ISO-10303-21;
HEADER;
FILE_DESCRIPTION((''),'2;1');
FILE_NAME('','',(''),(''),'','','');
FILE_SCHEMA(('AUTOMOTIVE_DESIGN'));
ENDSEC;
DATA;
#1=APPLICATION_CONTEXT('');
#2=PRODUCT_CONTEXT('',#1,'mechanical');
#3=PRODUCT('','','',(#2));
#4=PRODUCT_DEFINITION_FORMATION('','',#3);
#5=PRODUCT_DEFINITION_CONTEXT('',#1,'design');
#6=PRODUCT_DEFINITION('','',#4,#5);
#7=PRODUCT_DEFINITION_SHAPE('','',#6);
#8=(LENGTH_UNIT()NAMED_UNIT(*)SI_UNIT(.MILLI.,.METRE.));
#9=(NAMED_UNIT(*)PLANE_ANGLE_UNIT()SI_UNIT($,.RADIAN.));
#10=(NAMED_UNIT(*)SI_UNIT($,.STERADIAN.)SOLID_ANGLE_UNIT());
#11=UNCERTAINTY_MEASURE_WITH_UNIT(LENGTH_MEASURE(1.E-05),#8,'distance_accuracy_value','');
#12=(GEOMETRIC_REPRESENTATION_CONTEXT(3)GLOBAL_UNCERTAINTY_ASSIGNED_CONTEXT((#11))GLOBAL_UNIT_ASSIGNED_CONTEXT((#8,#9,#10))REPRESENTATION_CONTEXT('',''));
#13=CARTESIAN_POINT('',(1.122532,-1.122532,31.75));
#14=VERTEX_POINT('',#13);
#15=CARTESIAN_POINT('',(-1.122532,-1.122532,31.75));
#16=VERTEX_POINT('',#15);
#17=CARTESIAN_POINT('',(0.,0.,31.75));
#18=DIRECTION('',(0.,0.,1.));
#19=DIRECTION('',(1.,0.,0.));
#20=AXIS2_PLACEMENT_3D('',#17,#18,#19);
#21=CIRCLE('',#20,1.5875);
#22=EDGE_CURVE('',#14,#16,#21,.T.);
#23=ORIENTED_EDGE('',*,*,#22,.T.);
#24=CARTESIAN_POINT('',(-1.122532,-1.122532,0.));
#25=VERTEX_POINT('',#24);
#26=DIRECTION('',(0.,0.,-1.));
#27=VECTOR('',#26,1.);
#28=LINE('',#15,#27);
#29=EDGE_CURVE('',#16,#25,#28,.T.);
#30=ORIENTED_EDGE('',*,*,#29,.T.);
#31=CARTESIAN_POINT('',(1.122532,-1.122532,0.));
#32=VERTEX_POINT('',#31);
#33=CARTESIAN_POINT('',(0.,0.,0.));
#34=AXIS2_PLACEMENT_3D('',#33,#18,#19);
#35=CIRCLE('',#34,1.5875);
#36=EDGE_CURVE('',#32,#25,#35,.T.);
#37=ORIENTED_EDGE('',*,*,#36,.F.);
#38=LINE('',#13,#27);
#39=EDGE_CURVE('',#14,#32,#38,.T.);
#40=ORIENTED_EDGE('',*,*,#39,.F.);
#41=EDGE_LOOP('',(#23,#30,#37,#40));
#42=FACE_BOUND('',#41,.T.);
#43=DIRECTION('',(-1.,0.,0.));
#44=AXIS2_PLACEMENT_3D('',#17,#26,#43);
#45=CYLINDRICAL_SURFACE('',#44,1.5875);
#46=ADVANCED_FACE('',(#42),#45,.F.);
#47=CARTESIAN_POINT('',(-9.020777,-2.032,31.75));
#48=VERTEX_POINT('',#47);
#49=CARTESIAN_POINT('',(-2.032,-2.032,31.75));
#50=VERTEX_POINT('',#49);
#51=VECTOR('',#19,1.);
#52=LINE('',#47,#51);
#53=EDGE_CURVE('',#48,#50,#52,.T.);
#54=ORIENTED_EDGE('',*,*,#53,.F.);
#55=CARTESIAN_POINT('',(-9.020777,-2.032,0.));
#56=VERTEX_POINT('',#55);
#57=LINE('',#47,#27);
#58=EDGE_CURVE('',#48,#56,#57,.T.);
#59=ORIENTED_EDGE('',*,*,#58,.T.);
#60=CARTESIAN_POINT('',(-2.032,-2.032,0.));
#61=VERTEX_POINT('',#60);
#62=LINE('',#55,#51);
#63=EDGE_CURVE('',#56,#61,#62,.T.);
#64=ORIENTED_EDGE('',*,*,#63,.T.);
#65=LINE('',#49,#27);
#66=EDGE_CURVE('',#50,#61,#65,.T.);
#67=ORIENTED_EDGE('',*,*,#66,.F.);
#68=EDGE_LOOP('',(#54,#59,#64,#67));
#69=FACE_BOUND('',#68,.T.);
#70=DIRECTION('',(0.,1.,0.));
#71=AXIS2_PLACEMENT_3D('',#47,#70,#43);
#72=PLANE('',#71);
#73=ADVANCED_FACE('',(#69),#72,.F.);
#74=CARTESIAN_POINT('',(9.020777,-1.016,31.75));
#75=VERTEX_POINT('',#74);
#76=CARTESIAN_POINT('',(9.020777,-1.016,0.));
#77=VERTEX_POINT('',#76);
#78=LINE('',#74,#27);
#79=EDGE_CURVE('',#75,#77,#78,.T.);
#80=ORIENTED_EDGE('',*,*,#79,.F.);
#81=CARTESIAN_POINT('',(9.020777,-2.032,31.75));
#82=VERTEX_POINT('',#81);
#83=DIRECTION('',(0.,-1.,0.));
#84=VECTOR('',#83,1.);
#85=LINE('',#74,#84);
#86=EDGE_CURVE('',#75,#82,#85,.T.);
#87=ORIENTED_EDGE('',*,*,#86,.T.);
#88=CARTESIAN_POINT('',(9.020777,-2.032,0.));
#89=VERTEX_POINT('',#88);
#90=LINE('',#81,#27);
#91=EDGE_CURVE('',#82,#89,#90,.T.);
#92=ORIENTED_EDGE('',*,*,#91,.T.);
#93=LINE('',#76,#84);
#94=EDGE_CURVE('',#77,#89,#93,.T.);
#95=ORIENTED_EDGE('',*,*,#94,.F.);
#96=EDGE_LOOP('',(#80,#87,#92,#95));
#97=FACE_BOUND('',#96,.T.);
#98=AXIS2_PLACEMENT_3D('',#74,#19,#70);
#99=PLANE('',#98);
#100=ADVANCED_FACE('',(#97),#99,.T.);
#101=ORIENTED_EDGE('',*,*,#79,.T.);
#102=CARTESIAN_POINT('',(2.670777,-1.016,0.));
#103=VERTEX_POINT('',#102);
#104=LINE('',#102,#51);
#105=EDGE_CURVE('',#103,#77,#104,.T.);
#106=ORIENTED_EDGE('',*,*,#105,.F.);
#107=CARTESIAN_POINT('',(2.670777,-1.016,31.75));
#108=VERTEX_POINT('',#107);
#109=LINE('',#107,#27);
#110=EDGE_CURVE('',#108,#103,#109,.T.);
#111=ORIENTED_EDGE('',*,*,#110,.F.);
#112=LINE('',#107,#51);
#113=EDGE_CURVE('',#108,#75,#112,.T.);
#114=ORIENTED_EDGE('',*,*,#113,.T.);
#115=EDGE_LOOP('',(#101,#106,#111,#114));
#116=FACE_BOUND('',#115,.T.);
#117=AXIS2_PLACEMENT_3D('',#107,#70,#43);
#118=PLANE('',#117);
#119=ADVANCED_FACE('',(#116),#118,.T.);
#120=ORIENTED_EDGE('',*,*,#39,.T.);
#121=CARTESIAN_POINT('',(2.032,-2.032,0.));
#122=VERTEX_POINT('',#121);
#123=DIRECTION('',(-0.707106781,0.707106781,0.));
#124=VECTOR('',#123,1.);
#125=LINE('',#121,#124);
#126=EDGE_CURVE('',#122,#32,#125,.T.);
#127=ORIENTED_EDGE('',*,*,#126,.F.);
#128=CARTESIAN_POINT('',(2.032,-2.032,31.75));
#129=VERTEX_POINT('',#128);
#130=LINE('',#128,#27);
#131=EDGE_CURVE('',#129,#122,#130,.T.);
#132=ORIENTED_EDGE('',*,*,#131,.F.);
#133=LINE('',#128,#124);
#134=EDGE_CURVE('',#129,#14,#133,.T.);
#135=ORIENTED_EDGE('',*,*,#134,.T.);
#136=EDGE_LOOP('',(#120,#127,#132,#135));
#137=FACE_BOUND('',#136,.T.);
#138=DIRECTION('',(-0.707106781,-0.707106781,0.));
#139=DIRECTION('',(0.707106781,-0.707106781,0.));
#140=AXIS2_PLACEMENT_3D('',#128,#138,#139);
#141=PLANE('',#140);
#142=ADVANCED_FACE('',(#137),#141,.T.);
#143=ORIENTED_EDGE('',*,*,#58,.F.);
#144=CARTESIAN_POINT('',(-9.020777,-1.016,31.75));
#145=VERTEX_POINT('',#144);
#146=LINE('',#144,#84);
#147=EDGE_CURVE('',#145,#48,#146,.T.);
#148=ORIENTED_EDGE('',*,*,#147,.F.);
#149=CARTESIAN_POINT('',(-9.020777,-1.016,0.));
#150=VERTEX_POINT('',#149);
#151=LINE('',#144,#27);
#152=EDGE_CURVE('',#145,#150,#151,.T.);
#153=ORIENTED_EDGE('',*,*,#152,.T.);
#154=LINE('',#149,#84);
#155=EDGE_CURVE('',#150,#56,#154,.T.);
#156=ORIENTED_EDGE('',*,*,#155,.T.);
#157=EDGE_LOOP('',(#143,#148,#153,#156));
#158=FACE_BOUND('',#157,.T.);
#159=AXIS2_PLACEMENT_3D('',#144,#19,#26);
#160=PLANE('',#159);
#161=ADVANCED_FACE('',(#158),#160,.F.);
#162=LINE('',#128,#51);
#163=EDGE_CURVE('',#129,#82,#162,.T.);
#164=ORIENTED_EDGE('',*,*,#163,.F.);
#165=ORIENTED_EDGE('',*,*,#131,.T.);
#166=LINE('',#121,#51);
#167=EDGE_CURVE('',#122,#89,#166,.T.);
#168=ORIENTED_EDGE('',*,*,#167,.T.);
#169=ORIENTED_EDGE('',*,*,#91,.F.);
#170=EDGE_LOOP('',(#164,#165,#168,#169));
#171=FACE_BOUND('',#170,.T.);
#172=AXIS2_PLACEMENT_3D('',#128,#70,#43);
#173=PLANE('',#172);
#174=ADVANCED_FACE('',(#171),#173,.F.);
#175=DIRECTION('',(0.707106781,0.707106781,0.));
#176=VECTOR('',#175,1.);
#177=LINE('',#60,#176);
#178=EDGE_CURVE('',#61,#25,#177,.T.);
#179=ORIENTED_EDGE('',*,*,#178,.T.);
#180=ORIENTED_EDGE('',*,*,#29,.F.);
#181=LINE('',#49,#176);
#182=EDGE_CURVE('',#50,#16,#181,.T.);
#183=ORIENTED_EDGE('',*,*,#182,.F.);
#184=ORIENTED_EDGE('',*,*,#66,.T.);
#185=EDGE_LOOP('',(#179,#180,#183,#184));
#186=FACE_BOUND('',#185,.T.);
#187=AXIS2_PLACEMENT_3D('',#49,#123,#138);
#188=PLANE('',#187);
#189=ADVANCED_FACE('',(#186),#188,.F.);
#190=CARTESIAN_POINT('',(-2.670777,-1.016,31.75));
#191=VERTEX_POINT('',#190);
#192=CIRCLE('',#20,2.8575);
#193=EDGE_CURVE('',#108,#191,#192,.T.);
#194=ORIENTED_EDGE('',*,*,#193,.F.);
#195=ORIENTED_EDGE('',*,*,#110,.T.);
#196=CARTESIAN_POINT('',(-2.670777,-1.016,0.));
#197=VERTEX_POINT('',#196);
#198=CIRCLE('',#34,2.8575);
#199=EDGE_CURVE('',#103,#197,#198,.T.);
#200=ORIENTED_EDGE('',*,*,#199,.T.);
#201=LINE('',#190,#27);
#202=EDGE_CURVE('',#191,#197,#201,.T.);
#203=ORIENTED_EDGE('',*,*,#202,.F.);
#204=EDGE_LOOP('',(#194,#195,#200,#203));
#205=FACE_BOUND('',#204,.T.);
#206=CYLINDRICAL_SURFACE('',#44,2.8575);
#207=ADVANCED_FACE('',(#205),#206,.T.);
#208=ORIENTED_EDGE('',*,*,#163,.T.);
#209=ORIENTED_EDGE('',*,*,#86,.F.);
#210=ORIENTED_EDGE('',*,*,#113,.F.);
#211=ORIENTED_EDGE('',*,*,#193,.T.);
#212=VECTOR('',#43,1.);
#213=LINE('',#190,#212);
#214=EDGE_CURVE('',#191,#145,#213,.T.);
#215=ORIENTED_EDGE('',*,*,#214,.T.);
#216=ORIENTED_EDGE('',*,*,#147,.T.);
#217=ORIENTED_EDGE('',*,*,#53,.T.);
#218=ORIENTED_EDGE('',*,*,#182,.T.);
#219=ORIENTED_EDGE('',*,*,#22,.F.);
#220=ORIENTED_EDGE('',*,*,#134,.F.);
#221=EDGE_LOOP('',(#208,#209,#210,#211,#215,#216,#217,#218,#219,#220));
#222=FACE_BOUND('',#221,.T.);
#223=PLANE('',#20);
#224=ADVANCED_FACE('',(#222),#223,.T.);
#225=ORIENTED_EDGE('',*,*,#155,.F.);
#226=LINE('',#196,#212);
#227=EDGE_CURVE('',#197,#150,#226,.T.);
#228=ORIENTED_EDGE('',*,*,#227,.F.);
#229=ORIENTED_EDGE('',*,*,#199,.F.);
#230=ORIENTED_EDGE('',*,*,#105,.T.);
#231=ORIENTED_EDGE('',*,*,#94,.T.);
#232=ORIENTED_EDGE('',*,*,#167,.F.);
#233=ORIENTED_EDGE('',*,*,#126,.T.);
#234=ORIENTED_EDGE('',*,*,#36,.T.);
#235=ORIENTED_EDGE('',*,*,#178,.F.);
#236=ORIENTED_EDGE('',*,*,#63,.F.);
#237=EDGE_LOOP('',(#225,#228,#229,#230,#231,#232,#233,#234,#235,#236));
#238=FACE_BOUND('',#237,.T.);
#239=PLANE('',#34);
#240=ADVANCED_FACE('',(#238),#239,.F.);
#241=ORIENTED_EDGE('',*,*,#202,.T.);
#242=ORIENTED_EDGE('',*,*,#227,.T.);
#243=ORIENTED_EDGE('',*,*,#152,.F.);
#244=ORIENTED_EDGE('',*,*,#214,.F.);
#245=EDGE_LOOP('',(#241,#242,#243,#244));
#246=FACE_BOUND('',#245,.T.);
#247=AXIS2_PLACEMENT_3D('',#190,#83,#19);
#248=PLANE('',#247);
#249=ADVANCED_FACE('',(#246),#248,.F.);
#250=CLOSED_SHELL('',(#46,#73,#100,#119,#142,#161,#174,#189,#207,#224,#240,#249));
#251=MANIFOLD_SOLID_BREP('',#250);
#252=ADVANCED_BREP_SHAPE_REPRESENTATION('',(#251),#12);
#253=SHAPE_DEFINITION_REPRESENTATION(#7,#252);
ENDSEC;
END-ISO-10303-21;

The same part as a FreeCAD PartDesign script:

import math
import FreeCAD as App
import Part
import Sketcher

V = App.Vector
Q = App.Units.Quantity

doc = App.newDocument("Part")
body = doc.addObject("PartDesign::Body", "Body")

sketch1 = body.newObject("Sketcher::SketchObject", "Sketch")
sketch1.AttachmentSupport = (doc.getObject("XY_Plane"), [""])
sketch1.MapMode = "FlatFace"
sketch1.addGeometry([
    Part.LineSegment(V(-2.7, -1, 0), V(-9, -1, 0)),
    Part.LineSegment(V(-9, -1, 0), V(-9, -2, 0)),
    Part.LineSegment(V(-9, -2, 0), V(-2, -2, 0)),
    Part.LineSegment(V(-2, -2, 0), V(-1.1, -1.1, 0)),
    Part.ArcOfCircle(Part.Circle(V(0, 0, 0), V(0, 0, 1), 1.6), math.radians(-45), math.radians(225)),
    Part.LineSegment(V(1.1, -1.1, 0), V(2, -2, 0)),
    Part.LineSegment(V(2, -2, 0), V(9, -2, 0)),
    Part.LineSegment(V(9, -2, 0), V(9, -1, 0)),
    Part.LineSegment(V(9, -1, 0), V(2.7, -1, 0)),
    Part.ArcOfCircle(Part.Circle(V(0, 0, 0), V(0, 0, 1), 2.9), math.radians(-21), math.radians(201)),
], False)
sketch1.addConstraint([
    Sketcher.Constraint("Coincident", 0, 2, 1, 1),
    Sketcher.Constraint("Coincident", 1, 2, 2, 1),
    Sketcher.Constraint("Coincident", 2, 2, 3, 1),
    Sketcher.Constraint("Coincident", 3, 2, 4, 2),
    Sketcher.Constraint("Coincident", 4, 1, 5, 1),
    Sketcher.Constraint("Coincident", 5, 2, 6, 1),
    Sketcher.Constraint("Coincident", 6, 2, 7, 1),
    Sketcher.Constraint("Coincident", 7, 2, 8, 1),
    Sketcher.Constraint("Coincident", 8, 2, 9, 1),
    Sketcher.Constraint("Coincident", 9, 2, 0, 1),
    Sketcher.Constraint("Horizontal", 0),
    Sketcher.Constraint("Vertical", 1),
    Sketcher.Constraint("Horizontal", 2),
    Sketcher.Constraint("Horizontal", 6),
    Sketcher.Constraint("Vertical", 7),
    Sketcher.Constraint("Horizontal", 8),
    Sketcher.Constraint("Coincident", 4, 3, -1, 1),
    Sketcher.Constraint("Coincident", 9, 3, -1, 1),
    Sketcher.Constraint("Symmetric", 2, 2, 5, 2, -2),
    Sketcher.Constraint("Symmetric", 0, 2, 7, 2, -2),
    Sketcher.Constraint("Perpendicular", 3, 5),
    Sketcher.Constraint("Horizontal", 3, 2, 4, 1),
    Sketcher.Constraint("Radius", 4, Q("0.0625 in")),
    Sketcher.Constraint("DistanceX", 0, 2, 0, 1, Q("0.25 in")),
    Sketcher.Constraint("DistanceY", 1, 2, 1, 1, Q("0.04 in")),
    Sketcher.Constraint("Radius", 9, Q("0.1125 in")),
    Sketcher.Constraint("DistanceY", 0, 2, -1, 1, Q("0.04 in")),
    Sketcher.Constraint("DistanceX", 2, 2, -1, 1, Q("0.08 in")),
])
pad1 = body.newObject("PartDesign::Pad", "Pad")
pad1.Profile = sketch1
pad1.Length = Q("1.25 in")

doc.recompute()
